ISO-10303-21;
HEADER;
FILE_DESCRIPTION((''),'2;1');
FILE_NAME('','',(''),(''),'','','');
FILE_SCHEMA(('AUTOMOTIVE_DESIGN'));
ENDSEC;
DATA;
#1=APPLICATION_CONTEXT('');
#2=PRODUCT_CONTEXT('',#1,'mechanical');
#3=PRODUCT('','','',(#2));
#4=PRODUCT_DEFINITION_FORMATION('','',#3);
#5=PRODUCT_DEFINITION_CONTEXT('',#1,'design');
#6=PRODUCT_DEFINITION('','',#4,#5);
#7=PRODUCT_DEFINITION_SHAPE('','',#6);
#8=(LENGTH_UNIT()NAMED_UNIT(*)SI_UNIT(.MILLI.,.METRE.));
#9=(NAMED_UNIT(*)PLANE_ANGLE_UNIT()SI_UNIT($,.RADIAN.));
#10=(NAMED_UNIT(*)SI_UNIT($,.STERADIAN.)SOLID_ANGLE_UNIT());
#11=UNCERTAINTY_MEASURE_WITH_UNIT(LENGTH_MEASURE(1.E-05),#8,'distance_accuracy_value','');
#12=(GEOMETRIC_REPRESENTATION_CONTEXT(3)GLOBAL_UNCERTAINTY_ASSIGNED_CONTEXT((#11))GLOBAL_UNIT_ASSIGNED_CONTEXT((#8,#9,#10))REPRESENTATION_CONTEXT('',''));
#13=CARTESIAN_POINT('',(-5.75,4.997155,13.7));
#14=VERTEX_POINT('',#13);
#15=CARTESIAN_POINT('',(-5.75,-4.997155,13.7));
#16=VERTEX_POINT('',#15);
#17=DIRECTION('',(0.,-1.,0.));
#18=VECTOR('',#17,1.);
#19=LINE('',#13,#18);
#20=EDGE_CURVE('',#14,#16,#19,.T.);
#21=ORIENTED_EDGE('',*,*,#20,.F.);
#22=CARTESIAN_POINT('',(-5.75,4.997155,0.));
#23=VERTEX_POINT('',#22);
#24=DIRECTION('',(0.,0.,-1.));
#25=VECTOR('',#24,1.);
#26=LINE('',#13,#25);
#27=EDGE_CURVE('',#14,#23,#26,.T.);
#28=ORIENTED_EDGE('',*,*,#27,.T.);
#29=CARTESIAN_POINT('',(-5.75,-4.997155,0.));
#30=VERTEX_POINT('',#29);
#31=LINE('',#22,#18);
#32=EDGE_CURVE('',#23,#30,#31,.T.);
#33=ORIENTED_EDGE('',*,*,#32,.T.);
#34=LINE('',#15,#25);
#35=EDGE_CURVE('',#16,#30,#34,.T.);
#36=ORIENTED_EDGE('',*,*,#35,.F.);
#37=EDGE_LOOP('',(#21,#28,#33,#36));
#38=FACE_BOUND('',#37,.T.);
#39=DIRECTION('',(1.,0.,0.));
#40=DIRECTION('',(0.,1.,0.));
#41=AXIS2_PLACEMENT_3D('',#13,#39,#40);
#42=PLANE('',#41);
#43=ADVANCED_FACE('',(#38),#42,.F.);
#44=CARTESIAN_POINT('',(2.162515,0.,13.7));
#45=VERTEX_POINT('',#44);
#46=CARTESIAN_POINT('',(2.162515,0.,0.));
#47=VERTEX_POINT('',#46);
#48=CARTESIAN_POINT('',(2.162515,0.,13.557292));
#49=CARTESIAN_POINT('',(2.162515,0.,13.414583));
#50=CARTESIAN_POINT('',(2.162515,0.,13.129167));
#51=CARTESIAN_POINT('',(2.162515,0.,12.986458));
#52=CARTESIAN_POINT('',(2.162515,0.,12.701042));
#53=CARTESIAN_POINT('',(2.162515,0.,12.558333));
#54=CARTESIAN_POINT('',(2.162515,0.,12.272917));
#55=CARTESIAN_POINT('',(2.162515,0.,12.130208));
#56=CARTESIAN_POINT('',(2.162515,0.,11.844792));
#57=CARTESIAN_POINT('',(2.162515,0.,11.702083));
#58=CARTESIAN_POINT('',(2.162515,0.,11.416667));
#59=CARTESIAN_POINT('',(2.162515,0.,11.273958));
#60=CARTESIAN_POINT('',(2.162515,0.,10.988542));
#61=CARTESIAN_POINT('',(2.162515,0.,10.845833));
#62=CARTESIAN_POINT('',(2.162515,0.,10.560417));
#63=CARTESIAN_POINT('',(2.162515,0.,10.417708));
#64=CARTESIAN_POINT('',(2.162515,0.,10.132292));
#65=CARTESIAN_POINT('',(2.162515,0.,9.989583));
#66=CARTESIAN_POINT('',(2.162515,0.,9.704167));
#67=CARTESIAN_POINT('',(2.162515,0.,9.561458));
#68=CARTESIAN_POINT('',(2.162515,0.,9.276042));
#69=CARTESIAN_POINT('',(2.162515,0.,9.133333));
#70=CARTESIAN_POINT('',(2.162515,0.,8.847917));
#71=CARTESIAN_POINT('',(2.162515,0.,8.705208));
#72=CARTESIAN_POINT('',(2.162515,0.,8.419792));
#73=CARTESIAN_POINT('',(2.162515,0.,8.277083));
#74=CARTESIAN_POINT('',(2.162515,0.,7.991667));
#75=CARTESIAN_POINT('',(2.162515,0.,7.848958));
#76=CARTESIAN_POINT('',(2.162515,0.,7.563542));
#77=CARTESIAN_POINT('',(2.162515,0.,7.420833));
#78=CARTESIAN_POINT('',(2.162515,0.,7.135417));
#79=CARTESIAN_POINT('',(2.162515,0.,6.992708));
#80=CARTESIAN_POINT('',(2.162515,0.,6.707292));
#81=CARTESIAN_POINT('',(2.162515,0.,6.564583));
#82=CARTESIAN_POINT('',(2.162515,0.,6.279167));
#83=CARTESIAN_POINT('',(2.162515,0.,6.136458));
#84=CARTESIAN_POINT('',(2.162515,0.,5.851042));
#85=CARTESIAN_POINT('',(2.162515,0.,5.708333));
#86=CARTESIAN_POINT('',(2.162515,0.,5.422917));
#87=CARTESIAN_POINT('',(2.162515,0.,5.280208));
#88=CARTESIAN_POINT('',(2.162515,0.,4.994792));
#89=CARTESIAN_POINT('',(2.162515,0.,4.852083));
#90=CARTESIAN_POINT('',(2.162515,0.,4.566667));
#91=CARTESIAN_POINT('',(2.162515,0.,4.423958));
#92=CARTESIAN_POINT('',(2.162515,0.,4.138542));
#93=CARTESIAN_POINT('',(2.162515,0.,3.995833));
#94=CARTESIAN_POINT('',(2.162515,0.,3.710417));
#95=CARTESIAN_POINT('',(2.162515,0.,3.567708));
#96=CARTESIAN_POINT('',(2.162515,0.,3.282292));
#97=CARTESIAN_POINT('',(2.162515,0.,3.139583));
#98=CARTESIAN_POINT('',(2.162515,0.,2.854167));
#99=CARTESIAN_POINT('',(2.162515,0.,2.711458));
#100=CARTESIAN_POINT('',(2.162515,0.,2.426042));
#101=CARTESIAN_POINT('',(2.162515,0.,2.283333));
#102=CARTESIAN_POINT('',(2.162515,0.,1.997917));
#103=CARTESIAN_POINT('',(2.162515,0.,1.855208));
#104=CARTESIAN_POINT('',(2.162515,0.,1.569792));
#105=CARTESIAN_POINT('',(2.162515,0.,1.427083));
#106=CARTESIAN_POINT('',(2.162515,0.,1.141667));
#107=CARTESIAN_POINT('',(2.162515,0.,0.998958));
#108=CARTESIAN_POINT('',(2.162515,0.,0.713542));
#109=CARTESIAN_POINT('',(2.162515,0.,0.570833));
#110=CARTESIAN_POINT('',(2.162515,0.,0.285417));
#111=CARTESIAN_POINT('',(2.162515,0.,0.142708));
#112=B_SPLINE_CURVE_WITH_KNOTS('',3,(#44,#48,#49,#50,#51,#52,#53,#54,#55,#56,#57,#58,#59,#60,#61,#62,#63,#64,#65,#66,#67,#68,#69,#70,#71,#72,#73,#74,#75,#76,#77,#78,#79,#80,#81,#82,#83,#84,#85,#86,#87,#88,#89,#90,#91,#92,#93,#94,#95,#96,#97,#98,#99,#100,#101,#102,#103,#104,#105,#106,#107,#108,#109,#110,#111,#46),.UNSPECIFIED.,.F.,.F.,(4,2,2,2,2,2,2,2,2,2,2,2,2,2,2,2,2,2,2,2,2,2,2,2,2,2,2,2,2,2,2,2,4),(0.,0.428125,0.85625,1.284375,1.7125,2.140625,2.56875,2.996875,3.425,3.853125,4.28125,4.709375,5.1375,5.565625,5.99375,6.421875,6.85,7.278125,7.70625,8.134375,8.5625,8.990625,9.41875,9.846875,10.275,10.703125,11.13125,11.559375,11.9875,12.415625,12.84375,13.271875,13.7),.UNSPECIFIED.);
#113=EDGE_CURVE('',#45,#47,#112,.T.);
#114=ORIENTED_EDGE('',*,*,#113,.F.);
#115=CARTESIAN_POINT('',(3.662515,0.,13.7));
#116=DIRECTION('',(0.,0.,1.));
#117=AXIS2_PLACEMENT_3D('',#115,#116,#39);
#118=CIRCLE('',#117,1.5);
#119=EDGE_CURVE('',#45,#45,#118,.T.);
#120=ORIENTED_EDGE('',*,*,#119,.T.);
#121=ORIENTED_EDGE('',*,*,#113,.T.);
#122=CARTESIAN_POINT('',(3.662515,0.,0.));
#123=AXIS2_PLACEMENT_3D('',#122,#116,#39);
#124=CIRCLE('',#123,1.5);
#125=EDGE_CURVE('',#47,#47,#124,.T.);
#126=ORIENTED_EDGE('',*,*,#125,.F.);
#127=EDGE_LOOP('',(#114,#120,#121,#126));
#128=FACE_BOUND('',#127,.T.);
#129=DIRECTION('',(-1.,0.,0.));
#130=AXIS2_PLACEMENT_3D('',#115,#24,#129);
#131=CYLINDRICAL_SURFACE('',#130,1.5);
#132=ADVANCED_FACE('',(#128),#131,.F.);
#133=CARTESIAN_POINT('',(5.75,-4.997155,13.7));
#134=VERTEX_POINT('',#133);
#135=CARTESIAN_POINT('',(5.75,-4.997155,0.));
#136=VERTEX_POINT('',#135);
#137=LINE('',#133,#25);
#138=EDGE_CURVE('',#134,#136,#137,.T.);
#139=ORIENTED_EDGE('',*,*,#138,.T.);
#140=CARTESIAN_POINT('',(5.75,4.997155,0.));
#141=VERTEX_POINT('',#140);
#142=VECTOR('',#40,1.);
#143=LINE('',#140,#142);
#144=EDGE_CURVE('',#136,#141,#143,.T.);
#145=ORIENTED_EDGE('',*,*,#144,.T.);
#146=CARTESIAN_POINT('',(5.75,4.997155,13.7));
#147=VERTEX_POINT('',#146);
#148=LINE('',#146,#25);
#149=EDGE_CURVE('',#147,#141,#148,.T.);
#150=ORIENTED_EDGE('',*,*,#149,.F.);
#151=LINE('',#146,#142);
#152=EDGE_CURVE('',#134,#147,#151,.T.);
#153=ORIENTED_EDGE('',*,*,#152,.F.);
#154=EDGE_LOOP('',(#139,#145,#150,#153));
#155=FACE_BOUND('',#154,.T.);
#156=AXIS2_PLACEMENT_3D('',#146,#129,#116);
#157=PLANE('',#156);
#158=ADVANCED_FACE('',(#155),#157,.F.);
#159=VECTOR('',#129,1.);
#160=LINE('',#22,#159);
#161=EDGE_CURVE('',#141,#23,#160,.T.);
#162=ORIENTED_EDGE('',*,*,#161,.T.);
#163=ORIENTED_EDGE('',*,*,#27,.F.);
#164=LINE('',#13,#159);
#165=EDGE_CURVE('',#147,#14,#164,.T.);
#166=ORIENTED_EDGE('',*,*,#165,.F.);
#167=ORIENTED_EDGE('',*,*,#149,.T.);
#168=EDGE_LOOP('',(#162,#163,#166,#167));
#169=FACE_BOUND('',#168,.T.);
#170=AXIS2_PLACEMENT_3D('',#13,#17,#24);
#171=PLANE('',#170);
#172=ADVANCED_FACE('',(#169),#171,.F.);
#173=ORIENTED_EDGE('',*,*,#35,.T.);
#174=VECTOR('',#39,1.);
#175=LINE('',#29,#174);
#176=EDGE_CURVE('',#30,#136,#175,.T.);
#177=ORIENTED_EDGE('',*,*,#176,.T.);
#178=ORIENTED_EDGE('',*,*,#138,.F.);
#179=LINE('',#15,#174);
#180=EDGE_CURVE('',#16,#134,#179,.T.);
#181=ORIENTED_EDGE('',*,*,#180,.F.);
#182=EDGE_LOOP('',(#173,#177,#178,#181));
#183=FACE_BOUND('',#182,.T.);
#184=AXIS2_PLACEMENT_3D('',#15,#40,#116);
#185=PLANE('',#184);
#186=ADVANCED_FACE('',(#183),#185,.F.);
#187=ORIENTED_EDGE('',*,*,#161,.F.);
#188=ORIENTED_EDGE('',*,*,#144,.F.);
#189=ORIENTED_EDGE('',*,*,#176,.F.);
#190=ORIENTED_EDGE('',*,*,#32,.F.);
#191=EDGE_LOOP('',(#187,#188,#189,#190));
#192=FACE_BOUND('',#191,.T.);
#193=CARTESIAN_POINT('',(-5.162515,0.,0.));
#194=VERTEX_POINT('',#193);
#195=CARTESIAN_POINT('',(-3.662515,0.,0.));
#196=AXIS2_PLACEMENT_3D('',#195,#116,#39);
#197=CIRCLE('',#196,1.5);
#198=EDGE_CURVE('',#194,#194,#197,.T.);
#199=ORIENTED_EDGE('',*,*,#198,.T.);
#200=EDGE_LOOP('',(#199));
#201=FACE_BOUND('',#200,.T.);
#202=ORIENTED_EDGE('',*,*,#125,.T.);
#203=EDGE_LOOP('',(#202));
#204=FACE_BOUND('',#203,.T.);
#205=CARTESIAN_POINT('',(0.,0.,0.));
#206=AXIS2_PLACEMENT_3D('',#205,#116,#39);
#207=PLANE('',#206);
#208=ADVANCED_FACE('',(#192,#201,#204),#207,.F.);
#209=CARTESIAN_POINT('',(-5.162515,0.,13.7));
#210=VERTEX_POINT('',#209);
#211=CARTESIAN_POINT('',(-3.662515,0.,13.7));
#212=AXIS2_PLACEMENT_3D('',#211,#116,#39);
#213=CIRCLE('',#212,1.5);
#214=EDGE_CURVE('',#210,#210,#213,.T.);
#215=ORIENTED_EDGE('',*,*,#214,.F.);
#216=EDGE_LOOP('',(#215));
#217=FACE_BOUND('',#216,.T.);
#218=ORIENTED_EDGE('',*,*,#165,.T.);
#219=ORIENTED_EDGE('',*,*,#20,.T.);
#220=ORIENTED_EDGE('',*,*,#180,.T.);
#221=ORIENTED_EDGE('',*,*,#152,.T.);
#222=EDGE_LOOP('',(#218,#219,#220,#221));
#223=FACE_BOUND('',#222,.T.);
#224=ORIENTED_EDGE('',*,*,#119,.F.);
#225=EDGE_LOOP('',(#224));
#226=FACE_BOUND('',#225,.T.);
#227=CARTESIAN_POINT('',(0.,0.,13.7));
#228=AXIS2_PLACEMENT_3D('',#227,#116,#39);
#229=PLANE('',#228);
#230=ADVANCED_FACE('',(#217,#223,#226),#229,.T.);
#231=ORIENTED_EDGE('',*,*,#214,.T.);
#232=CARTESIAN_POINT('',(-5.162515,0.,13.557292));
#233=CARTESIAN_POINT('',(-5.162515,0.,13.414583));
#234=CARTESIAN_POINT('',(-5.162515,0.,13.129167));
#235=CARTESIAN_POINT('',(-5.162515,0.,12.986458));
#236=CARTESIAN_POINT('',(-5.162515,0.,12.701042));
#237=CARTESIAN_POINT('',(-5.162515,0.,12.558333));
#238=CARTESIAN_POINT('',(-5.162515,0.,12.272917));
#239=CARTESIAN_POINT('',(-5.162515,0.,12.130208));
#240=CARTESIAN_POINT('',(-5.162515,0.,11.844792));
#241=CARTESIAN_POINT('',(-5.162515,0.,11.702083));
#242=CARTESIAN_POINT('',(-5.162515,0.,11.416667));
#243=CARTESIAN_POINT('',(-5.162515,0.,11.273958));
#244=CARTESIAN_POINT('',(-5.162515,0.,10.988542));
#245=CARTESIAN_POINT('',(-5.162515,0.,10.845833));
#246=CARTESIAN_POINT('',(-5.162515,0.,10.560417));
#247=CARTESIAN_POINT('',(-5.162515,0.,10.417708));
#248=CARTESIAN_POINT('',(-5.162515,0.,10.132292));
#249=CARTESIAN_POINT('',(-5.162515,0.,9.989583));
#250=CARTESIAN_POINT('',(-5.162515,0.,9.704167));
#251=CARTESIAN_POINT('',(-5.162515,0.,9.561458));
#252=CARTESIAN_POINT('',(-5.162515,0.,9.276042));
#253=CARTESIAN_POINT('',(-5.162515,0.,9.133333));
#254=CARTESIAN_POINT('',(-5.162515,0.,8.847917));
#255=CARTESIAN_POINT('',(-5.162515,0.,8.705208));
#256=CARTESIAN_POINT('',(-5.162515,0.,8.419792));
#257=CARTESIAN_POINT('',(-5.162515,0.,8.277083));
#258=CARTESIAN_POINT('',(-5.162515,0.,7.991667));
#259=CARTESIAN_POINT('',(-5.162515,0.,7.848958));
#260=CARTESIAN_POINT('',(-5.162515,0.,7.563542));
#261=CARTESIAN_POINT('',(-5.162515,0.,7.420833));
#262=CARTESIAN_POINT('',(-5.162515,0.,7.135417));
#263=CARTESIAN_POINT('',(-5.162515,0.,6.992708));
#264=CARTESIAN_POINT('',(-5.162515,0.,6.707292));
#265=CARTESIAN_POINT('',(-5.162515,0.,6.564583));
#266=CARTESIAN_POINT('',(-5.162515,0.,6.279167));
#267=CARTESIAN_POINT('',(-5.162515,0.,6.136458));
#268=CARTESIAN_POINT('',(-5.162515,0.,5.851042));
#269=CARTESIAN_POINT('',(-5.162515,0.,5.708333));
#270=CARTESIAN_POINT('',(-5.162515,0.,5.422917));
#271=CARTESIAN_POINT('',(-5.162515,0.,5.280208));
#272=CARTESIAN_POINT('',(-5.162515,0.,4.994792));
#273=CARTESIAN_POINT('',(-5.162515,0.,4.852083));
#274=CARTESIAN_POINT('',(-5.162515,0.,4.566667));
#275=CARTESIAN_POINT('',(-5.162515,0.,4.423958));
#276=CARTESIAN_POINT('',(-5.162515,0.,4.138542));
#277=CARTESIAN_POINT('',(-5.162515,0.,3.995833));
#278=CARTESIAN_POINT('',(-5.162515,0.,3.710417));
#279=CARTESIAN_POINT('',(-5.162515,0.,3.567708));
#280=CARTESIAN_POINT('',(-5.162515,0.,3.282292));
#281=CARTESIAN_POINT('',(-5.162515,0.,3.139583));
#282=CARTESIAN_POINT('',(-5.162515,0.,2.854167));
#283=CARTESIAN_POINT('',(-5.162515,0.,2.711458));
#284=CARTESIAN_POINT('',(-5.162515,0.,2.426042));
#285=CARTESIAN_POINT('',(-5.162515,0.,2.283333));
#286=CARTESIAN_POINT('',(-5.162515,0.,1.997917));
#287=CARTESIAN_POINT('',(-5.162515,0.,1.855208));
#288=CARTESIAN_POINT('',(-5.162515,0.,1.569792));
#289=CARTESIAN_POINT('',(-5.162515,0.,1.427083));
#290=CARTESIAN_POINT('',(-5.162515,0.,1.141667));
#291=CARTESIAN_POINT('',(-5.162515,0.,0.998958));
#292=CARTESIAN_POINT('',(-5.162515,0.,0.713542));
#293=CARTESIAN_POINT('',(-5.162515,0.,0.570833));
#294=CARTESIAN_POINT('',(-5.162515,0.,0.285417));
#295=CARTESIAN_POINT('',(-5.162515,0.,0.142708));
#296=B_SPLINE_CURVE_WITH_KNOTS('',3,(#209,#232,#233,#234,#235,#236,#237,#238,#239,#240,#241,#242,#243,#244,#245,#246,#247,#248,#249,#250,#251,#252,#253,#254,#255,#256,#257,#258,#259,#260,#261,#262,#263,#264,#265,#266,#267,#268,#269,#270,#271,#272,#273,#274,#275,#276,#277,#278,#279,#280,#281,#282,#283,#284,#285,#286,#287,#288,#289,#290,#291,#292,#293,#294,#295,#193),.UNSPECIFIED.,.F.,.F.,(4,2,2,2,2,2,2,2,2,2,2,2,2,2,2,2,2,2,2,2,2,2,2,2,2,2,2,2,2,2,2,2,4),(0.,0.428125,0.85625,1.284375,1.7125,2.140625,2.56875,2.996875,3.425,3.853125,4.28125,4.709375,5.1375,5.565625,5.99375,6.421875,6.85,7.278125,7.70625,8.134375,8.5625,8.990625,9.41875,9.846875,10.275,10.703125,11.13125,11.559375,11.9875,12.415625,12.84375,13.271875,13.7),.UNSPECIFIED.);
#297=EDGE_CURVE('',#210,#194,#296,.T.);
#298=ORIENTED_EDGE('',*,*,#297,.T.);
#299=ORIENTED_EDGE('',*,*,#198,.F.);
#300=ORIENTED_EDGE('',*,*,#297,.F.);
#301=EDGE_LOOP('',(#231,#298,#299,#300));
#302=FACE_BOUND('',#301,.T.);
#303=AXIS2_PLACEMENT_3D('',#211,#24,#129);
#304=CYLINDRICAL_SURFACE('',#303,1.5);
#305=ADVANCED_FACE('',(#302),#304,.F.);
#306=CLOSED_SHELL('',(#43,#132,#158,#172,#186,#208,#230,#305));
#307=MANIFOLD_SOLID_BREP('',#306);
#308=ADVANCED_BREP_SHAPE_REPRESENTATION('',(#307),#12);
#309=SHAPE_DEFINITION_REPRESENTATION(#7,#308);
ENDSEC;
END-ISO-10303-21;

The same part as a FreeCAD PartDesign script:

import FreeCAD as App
import Part
import Sketcher
Q = App.Units.Quantity


def add_polygon(sketch, points):
    """Adds a closed chain of lines whose ends are joined by coincident constraints."""
    first, n = sketch.GeometryCount, len(points)
    for a, b in zip(points, points[1:] + points[:1]):
        sketch.addGeometry(Part.LineSegment(App.Vector(*a, 0), App.Vector(*b, 0)), False)
    for i in range(n):
        sketch.addConstraint(Sketcher.Constraint("Coincident", first + i, 2, first + (i + 1) % n, 1))

doc = App.newDocument("Part")
body = doc.addObject("PartDesign::Body", "Body")

# Sketch on XY plane
sketch1 = doc.addObject("Sketcher::SketchObject", "Sketch")
body.addObject(sketch1)
sketch1.AttachmentSupport = (doc.XY_Plane, [""])
sketch1.MapMode = "FlatFace"
add_polygon(sketch1, [(-5.8, 5), (-5.8, -5), (5.8, -5), (5.8, 5)])  # lines 0-3
sketch1.addGeometry(Part.Circle(App.Vector(-3.7, 0, 0), App.Vector(0, 0, 1), 1.5), False)  # 4
sketch1.addGeometry(Part.Circle(App.Vector(3.7, 0, 0), App.Vector(0, 0, 1), 1.5), False)  # 5
sketch1.addConstraint(Sketcher.Constraint("Vertical", 0))
sketch1.addConstraint(Sketcher.Constraint("Horizontal", 1))
sketch1.addConstraint(Sketcher.Constraint("Vertical", 2))
sketch1.addConstraint(Sketcher.Constraint("Horizontal", 3))
sketch1.addConstraint(Sketcher.Constraint("Equal", 4, 5))
sketch1.addConstraint(Sketcher.Constraint("Symmetric", 4, 3, 5, 3, -1, 1))
sketch1.addConstraint(Sketcher.Constraint("Symmetric", 0, 2, 2, 2, -1, 1))
sketch1.addConstraint(Sketcher.Constraint("PointOnObject", 4, 3, -1))
sketch1.addConstraint(Sketcher.Constraint("Diameter", 4, Q("3 mm")))
sketch1.addConstraint(Sketcher.Constraint("DistanceX", 1, 1, 1, 2, Q("11.5 mm")))
sketch1.addConstraint(Sketcher.Constraint("DistanceY", 0, 2, 0, 1, Q("9.99431 mm")))
sketch1.addConstraint(Sketcher.Constraint("DistanceX", 4, 3, 5, 3, Q("7.32503 mm")))
pad1 = doc.addObject("PartDesign::Pad", "Pad")
body.addObject(pad1)
pad1.Profile = sketch1
pad1.Length = 13.7

doc.recompute()
